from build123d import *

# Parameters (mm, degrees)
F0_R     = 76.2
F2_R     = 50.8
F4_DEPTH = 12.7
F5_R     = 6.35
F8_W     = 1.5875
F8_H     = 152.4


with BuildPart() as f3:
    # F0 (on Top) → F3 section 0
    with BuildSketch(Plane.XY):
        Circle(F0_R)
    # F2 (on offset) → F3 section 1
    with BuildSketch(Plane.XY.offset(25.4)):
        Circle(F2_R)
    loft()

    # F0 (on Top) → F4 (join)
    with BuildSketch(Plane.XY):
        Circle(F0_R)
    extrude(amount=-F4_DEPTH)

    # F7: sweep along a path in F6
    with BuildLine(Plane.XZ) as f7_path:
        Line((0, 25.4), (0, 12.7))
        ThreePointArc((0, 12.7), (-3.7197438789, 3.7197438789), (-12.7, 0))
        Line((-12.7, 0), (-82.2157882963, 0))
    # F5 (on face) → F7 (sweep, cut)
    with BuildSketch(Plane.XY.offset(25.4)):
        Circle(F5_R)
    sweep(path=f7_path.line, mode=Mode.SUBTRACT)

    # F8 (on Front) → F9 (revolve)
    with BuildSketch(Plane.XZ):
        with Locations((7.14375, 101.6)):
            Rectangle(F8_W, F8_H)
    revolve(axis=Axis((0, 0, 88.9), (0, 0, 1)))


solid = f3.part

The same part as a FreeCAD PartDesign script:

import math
import FreeCAD as App
import Part
import Sketcher

V = App.Vector
Q = App.Units.Quantity


def add_polygon(sketch, points):
    """Adds a closed chain of lines whose ends are joined by coincident constraints."""
    first, n = sketch.GeometryCount, len(points)
    for a, b in zip(points, points[1:] + points[:1]):
        sketch.addGeometry(Part.LineSegment(App.Vector(*a, 0), App.Vector(*b, 0)), False)
    for i in range(n):
        sketch.addConstraint(Sketcher.Constraint("Coincident", first + i, 2, first + (i + 1) % n, 1))

doc = App.newDocument("Part")
body = doc.addObject("PartDesign::Body", "Body")

sketch1 = doc.addObject("Sketcher::SketchObject", "Sketch")
body.addObject(sketch1)
sketch1.AttachmentSupport = (doc.XY_Plane, [""])
sketch1.MapMode = "FlatFace"
sketch1.addGeometry(Part.Circle(V(0, 0, 0), V(0, 0, 1), 76.2), False)
sketch1.addConstraint([
    Sketcher.Constraint("Coincident", 0, 3, -1, 1),
    Sketcher.Constraint("Diameter", 0, Q("6 in")),
])

sketch2 = doc.addObject("Sketcher::SketchObject", "Sketch001")
body.addObject(sketch2)
sketch2.AttachmentSupport = (doc.XY_Plane, [""])
sketch2.MapMode = "FlatFace"
sketch2.AttachmentOffset = App.Placement(V(0, 0, 1 * 25.4), App.Rotation())
sketch2.addGeometry(Part.Circle(V(0, 0, 0), V(0, 0, 1), 50.8), False)
sketch2.addConstraint([
    Sketcher.Constraint("Coincident", 0, 3, -1, 1),
    Sketcher.Constraint("Diameter", 0, Q("4 in")),
])

additiveloft = doc.addObject("PartDesign::AdditiveLoft", "AdditiveLoft")
body.addObject(additiveloft)
additiveloft.Profile = sketch1
additiveloft.Sections = [sketch2]

sketch3 = doc.addObject("Sketcher::SketchObject", "Sketch002")
body.addObject(sketch3)
sketch3.AttachmentSupport = (doc.XY_Plane, [""])
sketch3.MapMode = "FlatFace"
sketch3.addGeometry(Part.Circle(V(0, 0, 0), V(0, 0, 1), 76.2), False)
sketch3.addConstraint([
    Sketcher.Constraint("Coincident", 0, 3, -1, 1),
    Sketcher.Constraint("Diameter", 0, Q("6 in")),
])
pad1 = doc.addObject("PartDesign::Pad", "Pad")
body.addObject(pad1)
pad1.Profile = sketch3
pad1.Length = Q("0.5 in")
pad1.Reversed = True

sketch4 = doc.addObject("Sketcher::SketchObject", "Sketch003")
body.addObject(sketch4)
sketch4.AttachmentSupport = (doc.XY_Plane, [""])
sketch4.MapMode = "FlatFace"
sketch4.AttachmentOffset = App.Placement(V(0, 0, 1 * 25.4), App.Rotation())
sketch4.addGeometry(Part.Circle(V(0, 0, 0), V(0, 0, 1), 6.35), False)
sketch4.addConstraint([
    Sketcher.Constraint("Coincident", 0, 3, -1, 1),
    Sketcher.Constraint("Diameter", 0, Q("0.5 in")),
])

sketch5 = doc.addObject("Sketcher::SketchObject", "Sketch004")
body.addObject(sketch5)
sketch5.AttachmentSupport = (doc.XZ_Plane, [""])
sketch5.MapMode = "FlatFace"
sketch5.addGeometry([
    Part.LineSegment(V(0, 25.4, 0), V(0, 12.7, 0)),
    Part.ArcOfCircle(Part.Circle(V(-12.7, 12.7, 0), V(0, 0, 1), 12.7), math.radians(-90), math.radians(0)),
    Part.LineSegment(V(-12.7, 0, 0), V(-82.215788, 0, 0)),
], False)
sketch5.addConstraint([
    Sketcher.Constraint("Tangent", 0, 2, 1, 2),
    Sketcher.Constraint("Tangent", 1, 1, 2, 1),
    Sketcher.Constraint("Vertical", 0),
    Sketcher.Constraint("Horizontal", 2),
    Sketcher.Constraint("PointOnObject", 0, 1, -2),
    Sketcher.Constraint("PointOnObject", 1, 1, -1),
    Sketcher.Constraint("Radius", 1, Q("0.5 in")),
    Sketcher.Constraint("DistanceY", 0, 2, 0, 1, Q("0.5 in")),
    Sketcher.Constraint("DistanceX", 2, 2, 2, 1, Q("69.515788 mm")),
])
doc.recompute()

subtractivepipe = doc.addObject("PartDesign::SubtractivePipe", "SubtractivePipe")
body.addObject(subtractivepipe)
subtractivepipe.Profile = sketch4
subtractivepipe.Spine = (sketch5, ["Edge1", "Edge2", "Edge3"])

sketch6 = doc.addObject("Sketcher::SketchObject", "Sketch005")
body.addObject(sketch6)
sketch6.AttachmentSupport = (doc.XZ_Plane, [""])
sketch6.MapMode = "FlatFace"
add_polygon(sketch6, [(6.35, 177.8), (6.35, 25.4), (7.9375, 25.4), (7.9375, 177.8)])
sketch6.addConstraint([
    Sketcher.Constraint("Vertical", 0),
    Sketcher.Constraint("Horizontal", 1),
    Sketcher.Constraint("Vertical", 2),
    Sketcher.Constraint("Horizontal", 3),
    Sketcher.Constraint("DistanceY", 0, 2, 0, 1, Q("6 in")),
    Sketcher.Constraint("DistanceY", -1, 1, 0, 2, Q("1 in")),
    Sketcher.Constraint("DistanceX", 1, 1, 1, 2, Q("0.0625 in")),
    Sketcher.Constraint("DistanceX", -1, 1, 0, 2, Q("0.25 in")),
])
revolution = doc.addObject("PartDesign::Revolution", "Revolution")
body.addObject(revolution)
revolution.Profile = sketch6
revolution.ReferenceAxis = (sketch6, ["V_Axis"])
revolution.Angle = 360

doc.recompute()
